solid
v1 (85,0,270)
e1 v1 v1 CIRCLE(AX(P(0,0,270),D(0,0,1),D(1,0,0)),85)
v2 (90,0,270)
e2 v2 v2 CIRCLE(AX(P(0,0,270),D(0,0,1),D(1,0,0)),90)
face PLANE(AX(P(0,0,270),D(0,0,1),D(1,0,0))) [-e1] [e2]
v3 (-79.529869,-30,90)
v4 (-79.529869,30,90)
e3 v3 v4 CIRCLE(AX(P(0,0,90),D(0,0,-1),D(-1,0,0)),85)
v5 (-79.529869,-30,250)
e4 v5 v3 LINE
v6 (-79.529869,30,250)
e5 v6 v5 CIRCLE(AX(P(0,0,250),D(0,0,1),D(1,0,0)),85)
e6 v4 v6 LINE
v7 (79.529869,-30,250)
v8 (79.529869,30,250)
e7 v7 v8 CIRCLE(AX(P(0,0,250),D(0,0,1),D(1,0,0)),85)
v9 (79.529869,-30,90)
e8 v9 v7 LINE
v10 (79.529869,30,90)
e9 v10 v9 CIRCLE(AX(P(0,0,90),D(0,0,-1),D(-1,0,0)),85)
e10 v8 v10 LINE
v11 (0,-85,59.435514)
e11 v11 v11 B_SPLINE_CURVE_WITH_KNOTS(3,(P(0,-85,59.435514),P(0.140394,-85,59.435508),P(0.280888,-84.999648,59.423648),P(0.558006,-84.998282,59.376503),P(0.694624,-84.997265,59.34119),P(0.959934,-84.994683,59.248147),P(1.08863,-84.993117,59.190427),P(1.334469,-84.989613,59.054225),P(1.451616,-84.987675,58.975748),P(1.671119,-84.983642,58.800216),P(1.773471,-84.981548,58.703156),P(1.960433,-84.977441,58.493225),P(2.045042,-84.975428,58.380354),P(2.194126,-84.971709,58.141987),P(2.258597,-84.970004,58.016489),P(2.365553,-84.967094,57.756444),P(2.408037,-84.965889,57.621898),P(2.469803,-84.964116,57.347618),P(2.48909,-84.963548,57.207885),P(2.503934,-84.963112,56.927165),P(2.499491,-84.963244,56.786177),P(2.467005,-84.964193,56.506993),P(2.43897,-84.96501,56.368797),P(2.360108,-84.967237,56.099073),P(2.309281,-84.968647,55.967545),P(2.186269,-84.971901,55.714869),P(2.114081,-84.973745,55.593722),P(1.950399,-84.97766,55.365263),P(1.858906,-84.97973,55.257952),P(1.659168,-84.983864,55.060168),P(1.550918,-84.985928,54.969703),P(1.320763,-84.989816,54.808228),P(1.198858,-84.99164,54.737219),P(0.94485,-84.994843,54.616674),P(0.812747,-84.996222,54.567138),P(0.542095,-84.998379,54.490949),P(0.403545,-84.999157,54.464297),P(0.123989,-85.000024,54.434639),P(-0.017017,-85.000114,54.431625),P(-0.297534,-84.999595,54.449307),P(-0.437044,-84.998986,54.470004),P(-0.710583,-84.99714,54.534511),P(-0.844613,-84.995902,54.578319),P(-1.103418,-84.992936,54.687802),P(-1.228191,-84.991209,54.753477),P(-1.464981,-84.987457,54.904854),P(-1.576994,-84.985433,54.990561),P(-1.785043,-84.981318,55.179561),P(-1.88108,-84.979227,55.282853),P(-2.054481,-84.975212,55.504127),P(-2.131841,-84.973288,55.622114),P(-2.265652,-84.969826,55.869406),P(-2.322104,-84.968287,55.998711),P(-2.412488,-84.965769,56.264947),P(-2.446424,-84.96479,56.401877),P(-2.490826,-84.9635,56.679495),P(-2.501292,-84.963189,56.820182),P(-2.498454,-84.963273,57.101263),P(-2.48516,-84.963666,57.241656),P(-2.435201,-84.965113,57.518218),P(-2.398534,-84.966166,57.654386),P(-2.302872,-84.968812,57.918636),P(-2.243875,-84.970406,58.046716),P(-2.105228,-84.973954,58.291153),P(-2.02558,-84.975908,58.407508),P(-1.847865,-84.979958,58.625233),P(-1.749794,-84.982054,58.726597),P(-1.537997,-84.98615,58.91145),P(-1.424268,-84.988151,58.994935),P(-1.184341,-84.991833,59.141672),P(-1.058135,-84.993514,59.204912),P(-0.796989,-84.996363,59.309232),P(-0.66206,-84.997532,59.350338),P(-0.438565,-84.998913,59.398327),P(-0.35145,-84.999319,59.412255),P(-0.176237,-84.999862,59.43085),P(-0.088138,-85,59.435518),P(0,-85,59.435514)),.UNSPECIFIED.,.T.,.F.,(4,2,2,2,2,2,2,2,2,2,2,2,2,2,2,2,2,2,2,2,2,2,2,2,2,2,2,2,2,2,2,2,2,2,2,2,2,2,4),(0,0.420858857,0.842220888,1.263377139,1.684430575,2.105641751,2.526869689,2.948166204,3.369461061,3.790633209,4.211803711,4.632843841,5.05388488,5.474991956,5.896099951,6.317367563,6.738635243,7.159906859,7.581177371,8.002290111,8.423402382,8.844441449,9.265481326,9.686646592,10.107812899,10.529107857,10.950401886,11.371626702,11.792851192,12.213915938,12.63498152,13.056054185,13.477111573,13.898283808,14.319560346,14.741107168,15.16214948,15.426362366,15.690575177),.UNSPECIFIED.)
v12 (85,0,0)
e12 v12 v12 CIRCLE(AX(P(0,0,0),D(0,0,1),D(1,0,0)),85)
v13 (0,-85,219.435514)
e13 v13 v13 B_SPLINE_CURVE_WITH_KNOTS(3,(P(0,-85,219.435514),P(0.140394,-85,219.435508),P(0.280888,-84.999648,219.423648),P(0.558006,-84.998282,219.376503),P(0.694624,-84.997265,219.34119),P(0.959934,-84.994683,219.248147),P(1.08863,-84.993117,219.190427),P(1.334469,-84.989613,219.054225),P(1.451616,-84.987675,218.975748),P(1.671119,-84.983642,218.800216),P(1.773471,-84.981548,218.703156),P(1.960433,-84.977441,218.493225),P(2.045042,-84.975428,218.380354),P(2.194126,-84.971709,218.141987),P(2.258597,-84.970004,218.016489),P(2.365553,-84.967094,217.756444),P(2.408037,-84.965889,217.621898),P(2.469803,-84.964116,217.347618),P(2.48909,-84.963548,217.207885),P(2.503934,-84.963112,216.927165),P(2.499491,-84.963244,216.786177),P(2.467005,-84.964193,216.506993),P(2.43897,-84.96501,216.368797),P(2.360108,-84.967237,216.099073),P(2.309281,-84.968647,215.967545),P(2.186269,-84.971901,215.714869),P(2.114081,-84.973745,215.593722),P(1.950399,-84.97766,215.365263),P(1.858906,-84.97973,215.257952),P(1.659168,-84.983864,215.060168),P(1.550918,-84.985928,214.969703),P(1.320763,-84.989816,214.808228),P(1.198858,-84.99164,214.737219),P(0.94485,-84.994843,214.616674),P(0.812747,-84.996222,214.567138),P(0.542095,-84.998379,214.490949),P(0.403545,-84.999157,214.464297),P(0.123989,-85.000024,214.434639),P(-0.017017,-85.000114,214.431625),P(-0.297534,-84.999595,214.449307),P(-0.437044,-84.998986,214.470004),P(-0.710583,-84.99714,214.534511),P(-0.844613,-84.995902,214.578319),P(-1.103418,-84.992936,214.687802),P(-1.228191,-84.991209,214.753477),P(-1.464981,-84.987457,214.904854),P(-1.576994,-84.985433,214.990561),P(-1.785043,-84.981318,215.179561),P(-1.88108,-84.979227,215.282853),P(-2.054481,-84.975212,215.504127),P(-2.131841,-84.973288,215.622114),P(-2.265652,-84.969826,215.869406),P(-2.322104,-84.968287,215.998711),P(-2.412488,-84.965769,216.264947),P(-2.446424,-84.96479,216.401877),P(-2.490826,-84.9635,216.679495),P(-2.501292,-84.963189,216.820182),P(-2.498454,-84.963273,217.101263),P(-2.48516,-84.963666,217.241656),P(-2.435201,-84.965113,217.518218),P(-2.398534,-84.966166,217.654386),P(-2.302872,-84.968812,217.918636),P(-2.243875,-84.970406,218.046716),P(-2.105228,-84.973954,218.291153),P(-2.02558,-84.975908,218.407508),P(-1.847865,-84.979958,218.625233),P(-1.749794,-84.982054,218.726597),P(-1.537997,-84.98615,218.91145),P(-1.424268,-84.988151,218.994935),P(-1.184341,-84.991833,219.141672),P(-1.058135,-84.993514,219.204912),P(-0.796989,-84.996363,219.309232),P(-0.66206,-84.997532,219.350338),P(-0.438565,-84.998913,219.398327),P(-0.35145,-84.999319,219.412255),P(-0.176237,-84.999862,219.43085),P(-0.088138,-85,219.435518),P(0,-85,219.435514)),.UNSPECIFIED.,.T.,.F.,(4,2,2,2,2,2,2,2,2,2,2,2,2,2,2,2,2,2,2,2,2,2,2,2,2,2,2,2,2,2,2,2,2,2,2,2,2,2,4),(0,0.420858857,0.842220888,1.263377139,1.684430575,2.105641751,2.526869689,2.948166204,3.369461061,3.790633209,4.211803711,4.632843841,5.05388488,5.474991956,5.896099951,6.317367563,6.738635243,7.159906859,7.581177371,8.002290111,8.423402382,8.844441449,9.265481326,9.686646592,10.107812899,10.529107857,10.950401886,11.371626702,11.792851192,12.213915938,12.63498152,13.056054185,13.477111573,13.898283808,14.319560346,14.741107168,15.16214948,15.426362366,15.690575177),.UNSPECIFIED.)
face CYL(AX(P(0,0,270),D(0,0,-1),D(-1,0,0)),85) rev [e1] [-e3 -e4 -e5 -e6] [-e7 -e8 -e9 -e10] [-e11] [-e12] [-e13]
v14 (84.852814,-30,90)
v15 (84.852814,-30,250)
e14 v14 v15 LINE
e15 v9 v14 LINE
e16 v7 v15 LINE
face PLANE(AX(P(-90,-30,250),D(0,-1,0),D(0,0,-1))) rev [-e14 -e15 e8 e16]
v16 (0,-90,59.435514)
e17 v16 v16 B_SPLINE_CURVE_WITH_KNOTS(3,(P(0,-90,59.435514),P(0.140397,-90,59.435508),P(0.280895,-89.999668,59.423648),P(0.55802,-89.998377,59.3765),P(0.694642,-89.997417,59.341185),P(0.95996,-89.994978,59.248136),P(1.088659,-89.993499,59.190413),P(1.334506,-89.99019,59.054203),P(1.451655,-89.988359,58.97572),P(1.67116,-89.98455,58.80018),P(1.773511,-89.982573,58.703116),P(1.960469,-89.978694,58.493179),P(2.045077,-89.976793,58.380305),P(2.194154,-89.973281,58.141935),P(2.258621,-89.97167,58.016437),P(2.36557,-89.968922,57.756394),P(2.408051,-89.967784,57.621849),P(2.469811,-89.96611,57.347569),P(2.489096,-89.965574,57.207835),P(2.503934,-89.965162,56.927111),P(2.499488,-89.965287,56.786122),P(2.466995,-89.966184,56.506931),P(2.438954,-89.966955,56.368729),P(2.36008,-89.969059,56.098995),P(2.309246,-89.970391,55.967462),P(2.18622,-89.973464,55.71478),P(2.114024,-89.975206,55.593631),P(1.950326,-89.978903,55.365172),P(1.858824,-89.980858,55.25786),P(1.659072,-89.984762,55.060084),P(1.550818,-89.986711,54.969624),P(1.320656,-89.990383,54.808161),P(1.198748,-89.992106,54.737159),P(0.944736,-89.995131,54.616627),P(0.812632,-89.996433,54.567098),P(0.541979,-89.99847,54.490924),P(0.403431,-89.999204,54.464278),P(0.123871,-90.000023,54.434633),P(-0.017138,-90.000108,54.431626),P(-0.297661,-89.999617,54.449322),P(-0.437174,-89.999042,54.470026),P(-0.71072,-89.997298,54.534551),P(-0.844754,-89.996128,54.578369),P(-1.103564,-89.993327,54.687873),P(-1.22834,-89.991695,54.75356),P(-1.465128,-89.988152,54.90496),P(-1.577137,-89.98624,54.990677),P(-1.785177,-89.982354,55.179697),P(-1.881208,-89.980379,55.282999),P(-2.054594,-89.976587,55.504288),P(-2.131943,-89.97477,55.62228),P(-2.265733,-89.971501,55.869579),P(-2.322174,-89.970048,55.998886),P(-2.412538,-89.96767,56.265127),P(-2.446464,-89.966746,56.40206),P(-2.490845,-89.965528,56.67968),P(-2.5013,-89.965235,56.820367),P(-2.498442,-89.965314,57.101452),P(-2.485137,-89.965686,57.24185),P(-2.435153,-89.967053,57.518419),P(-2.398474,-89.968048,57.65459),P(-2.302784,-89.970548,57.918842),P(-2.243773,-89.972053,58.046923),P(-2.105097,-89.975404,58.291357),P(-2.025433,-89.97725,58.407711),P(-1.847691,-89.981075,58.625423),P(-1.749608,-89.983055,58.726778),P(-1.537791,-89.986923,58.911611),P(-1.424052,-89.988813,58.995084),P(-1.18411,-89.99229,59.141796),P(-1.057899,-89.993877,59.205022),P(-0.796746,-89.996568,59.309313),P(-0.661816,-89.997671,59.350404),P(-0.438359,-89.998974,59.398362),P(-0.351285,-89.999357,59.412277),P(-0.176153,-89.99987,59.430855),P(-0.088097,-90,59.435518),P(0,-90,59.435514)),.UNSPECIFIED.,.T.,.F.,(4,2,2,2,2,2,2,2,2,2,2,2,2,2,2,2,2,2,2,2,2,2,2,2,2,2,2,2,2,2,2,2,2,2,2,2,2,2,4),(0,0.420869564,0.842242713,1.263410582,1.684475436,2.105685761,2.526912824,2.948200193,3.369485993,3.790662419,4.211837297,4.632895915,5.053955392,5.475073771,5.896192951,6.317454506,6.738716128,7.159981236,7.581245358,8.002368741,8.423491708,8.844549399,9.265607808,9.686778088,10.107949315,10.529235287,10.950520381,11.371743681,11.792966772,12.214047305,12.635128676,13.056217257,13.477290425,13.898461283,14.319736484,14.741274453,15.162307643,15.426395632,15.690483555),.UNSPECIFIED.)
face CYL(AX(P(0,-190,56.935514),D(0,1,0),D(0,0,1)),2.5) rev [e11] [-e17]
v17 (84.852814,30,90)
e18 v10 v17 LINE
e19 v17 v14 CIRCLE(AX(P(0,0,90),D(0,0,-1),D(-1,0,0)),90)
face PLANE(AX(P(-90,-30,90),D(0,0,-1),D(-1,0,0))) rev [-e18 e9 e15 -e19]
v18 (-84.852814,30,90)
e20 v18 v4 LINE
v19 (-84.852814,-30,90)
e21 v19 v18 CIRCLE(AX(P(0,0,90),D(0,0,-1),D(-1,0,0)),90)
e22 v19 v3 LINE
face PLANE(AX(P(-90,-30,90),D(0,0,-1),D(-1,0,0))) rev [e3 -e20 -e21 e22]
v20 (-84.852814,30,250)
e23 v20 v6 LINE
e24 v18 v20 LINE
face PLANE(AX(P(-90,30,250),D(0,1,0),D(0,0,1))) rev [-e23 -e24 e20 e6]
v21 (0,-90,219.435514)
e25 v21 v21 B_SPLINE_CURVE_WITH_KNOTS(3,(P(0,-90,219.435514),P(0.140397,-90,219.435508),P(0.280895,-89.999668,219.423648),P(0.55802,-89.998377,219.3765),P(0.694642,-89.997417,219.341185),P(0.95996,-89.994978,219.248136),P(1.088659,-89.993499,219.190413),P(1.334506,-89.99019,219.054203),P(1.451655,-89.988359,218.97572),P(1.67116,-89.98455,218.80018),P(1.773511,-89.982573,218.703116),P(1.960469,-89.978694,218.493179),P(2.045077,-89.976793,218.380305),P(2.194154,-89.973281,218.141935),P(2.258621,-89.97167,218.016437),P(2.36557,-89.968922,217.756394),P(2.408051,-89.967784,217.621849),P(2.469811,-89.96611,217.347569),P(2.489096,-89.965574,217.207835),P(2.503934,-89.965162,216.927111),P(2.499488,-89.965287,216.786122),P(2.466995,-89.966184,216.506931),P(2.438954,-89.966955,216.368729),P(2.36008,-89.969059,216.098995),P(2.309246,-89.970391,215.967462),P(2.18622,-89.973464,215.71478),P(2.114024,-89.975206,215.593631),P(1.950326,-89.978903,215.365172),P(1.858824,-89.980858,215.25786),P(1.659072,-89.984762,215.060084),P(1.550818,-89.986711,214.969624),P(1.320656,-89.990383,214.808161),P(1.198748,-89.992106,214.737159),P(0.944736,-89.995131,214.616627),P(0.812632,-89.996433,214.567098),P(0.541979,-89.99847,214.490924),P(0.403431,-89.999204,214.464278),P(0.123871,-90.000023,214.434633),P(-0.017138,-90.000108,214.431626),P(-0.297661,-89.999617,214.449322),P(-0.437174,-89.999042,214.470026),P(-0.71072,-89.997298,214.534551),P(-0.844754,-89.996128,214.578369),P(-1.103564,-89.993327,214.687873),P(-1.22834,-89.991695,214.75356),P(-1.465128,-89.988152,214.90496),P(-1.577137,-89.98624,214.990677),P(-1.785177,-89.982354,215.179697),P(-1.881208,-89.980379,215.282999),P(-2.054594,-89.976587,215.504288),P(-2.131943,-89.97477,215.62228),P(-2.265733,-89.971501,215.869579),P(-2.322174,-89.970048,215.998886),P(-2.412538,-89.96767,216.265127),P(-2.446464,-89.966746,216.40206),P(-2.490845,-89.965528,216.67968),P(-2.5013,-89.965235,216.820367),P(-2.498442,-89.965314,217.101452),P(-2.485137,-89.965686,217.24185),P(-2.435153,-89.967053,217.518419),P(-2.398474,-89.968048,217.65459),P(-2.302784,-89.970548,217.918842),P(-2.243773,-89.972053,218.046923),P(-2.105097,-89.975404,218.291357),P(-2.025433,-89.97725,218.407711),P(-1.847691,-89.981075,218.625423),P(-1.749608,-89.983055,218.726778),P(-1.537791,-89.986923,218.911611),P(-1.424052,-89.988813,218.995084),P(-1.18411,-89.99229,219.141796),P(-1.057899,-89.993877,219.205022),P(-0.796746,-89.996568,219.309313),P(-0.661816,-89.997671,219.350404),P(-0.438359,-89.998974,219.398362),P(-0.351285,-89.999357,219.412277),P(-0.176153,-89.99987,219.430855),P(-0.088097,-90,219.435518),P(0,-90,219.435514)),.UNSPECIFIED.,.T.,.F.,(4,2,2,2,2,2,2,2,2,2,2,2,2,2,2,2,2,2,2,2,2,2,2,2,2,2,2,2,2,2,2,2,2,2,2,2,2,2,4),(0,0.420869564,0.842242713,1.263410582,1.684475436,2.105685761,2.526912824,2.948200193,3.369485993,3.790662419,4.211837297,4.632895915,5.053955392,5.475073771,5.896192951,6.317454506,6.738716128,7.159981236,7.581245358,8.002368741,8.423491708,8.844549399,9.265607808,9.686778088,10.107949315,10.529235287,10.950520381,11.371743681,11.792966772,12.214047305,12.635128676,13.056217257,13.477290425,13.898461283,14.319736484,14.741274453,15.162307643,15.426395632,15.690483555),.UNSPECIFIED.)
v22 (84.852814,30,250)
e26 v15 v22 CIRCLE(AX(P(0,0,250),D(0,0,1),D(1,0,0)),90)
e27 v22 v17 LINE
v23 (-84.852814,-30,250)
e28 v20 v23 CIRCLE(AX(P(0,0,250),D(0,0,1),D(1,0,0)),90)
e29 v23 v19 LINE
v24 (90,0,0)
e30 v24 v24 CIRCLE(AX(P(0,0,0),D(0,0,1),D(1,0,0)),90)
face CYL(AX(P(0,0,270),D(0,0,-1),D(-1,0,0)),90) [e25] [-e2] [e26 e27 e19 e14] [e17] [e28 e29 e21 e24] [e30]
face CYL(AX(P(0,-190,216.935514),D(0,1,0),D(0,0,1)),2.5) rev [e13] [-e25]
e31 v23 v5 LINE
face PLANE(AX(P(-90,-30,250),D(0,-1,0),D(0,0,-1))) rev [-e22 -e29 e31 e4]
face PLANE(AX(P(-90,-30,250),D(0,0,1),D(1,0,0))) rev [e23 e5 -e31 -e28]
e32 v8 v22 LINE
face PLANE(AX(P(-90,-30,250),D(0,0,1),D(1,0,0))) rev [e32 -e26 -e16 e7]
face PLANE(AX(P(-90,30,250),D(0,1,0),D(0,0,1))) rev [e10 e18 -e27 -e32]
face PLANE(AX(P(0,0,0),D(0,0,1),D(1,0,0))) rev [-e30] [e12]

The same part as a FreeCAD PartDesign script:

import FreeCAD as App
import Part
import Sketcher


def add_polygon(sketch, points):
    """Adds a closed chain of lines whose ends are joined by coincident constraints."""
    first, n = sketch.GeometryCount, len(points)
    for a, b in zip(points, points[1:] + points[:1]):
        sketch.addGeometry(Part.LineSegment(App.Vector(*a, 0), App.Vector(*b, 0)), False)
    for i in range(n):
        sketch.addConstraint(Sketcher.Constraint("Coincident", first + i, 2, first + (i + 1) % n, 1))

doc = App.newDocument("Part")
body = doc.addObject("PartDesign::Body", "Body")

# Sketch on XY plane
sketch1 = doc.addObject("Sketcher::SketchObject", "Sketch")
body.addObject(sketch1)
sketch1.AttachmentSupport = (doc.XY_Plane, [""])
sketch1.MapMode = "FlatFace"
sketch1.addGeometry([
    Part.Circle(App.Vector(0, 0, 0), App.Vector(0, 0, 1), 90),
    Part.Circle(App.Vector(0, 0, 0), App.Vector(0, 0, 1), 85),
], False)
sketch1.addConstraint([
    Sketcher.Constraint("Coincident", 0, 3, -1, 1),
    Sketcher.Constraint("Coincident", 1, 3, -1, 1),
    Sketcher.Constraint("Diameter", 0, 180.0),
    Sketcher.Constraint("Diameter", 1, 170.0),
])
pad1 = doc.addObject("PartDesign::Pad", "Pad")
body.addObject(pad1)
pad1.Profile = sketch1
pad1.Length = 270

# Sketch on YZ plane
sketch2 = doc.addObject("Sketcher::SketchObject", "Sketch001")
body.addObject(sketch2)
sketch2.AttachmentSupport = (doc.YZ_Plane, [""])
sketch2.MapMode = "FlatFace"
sketch2.AttachmentOffset = App.Placement(App.Vector(0, 0, 10), App.Rotation())
add_polygon(sketch2, [(30, 250), (-30, 250), (-30, 90), (30, 90)])  # lines 0-3
sketch2.addConstraint([
    Sketcher.Constraint("Horizontal", 0),
    Sketcher.Constraint("Vertical", 1),
    Sketcher.Constraint("Horizontal", 2),
    Sketcher.Constraint("Vertical", 3),
    Sketcher.Constraint("DistanceX", 0, 2, 0, 1, 60.0),
    Sketcher.Constraint("DistanceY", 1, 2, 1, 1, 160.0),
    Sketcher.Constraint("DistanceX", 0, 2, -1, 1, 30.0),
    Sketcher.Constraint("DistanceY", -1, 1, 0, 2, 250.0),
])
pocket1 = doc.addObject("PartDesign::Pocket", "Pocket")
body.addObject(pocket1)
pocket1.Profile = sketch2
pocket1.Type = "ThroughAll"
pocket1.Midplane = True

# Sketch on XZ plane
sketch3 = doc.addObject("Sketcher::SketchObject", "Sketch002")
body.addObject(sketch3)
sketch3.AttachmentSupport = (doc.XZ_Plane, [""])
sketch3.MapMode = "FlatFace"
sketch3.AttachmentOffset = App.Placement(App.Vector(0, 0, -10), App.Rotation())
sketch3.addGeometry([
    Part.Circle(App.Vector(0, 216.935514, 0), App.Vector(0, 0, 1), 2.5),
    Part.Circle(App.Vector(0, 56.935514, 0), App.Vector(0, 0, 1), 2.5),
], False)
sketch3.addConstraint([
    Sketcher.Constraint("Equal", 0, 1),
    Sketcher.Constraint("PointOnObject", 0, 3, -2),
    Sketcher.Constraint("PointOnObject", 1, 3, -2),
    Sketcher.Constraint("Diameter", 0, 5.0),
    Sketcher.Constraint("DistanceY", 1, 3, 0, 3, 160.0),
    Sketcher.Constraint("DistanceY", -1, 1, 0, 3, 216.935514),
])
pocket2 = doc.addObject("PartDesign::Pocket", "Pocket001")
body.addObject(pocket2)
pocket2.Profile = sketch3
pocket2.Length = 200
pocket2.Reversed = True

doc.recompute()
